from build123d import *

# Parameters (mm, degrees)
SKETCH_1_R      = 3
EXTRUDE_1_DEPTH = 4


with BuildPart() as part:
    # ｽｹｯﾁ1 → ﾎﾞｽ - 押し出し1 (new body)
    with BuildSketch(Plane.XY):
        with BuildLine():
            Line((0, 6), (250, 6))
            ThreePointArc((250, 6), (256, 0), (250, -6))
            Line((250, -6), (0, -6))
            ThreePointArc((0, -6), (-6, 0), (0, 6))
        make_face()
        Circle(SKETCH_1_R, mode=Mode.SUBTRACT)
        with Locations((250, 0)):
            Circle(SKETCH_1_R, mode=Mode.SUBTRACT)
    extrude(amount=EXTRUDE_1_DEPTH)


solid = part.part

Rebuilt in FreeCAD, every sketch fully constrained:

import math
import FreeCAD as App
import Part
import Sketcher

V = App.Vector

doc = App.newDocument("Part")
body = doc.addObject("PartDesign::Body", "Body")

sketch1 = body.newObject("Sketcher::SketchObject", "Sketch")
sketch1.AttachmentSupport = (doc.getObject("XY_Plane"), [""])
sketch1.MapMode = "FlatFace"
sketch1.addGeometry(Part.LineSegment(V(250, 6, 0), V(0, 6, 0)), False)
sketch1.addGeometry(Part.ArcOfCircle(Part.Circle(V(0, 0, 0), V(0, 0, 1), 6), math.radians(90), math.radians(270)), False)
sketch1.addGeometry(Part.LineSegment(V(0, -6, 0), V(250, -6, 0)), False)
sketch1.addGeometry(Part.ArcOfCircle(Part.Circle(V(250, 0, 0), V(0, 0, 1), 6), math.radians(-90), math.radians(90)), False)
sketch1.addGeometry(Part.Circle(V(250, 0, 0), V(0, 0, 1), 3), False)
sketch1.addGeometry(Part.Circle(V(0, 0, 0), V(0, 0, 1), 3), False)
sketch1.addConstraint(Sketcher.Constraint("Tangent", 0, 2, 1, 1))
sketch1.addConstraint(Sketcher.Constraint("Tangent", 1, 2, 2, 1))
sketch1.addConstraint(Sketcher.Constraint("Tangent", 2, 2, 3, 1))
sketch1.addConstraint(Sketcher.Constraint("Tangent", 3, 2, 0, 1))
sketch1.addConstraint(Sketcher.Constraint("Horizontal", 0))
sketch1.addConstraint(Sketcher.Constraint("Horizontal", 2))
sketch1.addConstraint(Sketcher.Constraint("Coincident", 1, 3, -1, 1))
sketch1.addConstraint(Sketcher.Constraint("Coincident", 5, 3, -1, 1))
sketch1.addConstraint(Sketcher.Constraint("Coincident", 4, 3, 3, 3))
sketch1.addConstraint(Sketcher.Constraint("Equal", 4, 5))
sketch1.addConstraint(Sketcher.Constraint("Diameter", 4, 6.0))
sketch1.addConstraint(Sketcher.Constraint("Radius", 1, 6.0))
sketch1.addConstraint(Sketcher.Constraint("DistanceX", 0, 2, 0, 1, 250.0))
pad1 = body.newObject("PartDesign::Pad", "Pad")
pad1.Profile = sketch1
pad1.Length = 4

doc.recompute()
